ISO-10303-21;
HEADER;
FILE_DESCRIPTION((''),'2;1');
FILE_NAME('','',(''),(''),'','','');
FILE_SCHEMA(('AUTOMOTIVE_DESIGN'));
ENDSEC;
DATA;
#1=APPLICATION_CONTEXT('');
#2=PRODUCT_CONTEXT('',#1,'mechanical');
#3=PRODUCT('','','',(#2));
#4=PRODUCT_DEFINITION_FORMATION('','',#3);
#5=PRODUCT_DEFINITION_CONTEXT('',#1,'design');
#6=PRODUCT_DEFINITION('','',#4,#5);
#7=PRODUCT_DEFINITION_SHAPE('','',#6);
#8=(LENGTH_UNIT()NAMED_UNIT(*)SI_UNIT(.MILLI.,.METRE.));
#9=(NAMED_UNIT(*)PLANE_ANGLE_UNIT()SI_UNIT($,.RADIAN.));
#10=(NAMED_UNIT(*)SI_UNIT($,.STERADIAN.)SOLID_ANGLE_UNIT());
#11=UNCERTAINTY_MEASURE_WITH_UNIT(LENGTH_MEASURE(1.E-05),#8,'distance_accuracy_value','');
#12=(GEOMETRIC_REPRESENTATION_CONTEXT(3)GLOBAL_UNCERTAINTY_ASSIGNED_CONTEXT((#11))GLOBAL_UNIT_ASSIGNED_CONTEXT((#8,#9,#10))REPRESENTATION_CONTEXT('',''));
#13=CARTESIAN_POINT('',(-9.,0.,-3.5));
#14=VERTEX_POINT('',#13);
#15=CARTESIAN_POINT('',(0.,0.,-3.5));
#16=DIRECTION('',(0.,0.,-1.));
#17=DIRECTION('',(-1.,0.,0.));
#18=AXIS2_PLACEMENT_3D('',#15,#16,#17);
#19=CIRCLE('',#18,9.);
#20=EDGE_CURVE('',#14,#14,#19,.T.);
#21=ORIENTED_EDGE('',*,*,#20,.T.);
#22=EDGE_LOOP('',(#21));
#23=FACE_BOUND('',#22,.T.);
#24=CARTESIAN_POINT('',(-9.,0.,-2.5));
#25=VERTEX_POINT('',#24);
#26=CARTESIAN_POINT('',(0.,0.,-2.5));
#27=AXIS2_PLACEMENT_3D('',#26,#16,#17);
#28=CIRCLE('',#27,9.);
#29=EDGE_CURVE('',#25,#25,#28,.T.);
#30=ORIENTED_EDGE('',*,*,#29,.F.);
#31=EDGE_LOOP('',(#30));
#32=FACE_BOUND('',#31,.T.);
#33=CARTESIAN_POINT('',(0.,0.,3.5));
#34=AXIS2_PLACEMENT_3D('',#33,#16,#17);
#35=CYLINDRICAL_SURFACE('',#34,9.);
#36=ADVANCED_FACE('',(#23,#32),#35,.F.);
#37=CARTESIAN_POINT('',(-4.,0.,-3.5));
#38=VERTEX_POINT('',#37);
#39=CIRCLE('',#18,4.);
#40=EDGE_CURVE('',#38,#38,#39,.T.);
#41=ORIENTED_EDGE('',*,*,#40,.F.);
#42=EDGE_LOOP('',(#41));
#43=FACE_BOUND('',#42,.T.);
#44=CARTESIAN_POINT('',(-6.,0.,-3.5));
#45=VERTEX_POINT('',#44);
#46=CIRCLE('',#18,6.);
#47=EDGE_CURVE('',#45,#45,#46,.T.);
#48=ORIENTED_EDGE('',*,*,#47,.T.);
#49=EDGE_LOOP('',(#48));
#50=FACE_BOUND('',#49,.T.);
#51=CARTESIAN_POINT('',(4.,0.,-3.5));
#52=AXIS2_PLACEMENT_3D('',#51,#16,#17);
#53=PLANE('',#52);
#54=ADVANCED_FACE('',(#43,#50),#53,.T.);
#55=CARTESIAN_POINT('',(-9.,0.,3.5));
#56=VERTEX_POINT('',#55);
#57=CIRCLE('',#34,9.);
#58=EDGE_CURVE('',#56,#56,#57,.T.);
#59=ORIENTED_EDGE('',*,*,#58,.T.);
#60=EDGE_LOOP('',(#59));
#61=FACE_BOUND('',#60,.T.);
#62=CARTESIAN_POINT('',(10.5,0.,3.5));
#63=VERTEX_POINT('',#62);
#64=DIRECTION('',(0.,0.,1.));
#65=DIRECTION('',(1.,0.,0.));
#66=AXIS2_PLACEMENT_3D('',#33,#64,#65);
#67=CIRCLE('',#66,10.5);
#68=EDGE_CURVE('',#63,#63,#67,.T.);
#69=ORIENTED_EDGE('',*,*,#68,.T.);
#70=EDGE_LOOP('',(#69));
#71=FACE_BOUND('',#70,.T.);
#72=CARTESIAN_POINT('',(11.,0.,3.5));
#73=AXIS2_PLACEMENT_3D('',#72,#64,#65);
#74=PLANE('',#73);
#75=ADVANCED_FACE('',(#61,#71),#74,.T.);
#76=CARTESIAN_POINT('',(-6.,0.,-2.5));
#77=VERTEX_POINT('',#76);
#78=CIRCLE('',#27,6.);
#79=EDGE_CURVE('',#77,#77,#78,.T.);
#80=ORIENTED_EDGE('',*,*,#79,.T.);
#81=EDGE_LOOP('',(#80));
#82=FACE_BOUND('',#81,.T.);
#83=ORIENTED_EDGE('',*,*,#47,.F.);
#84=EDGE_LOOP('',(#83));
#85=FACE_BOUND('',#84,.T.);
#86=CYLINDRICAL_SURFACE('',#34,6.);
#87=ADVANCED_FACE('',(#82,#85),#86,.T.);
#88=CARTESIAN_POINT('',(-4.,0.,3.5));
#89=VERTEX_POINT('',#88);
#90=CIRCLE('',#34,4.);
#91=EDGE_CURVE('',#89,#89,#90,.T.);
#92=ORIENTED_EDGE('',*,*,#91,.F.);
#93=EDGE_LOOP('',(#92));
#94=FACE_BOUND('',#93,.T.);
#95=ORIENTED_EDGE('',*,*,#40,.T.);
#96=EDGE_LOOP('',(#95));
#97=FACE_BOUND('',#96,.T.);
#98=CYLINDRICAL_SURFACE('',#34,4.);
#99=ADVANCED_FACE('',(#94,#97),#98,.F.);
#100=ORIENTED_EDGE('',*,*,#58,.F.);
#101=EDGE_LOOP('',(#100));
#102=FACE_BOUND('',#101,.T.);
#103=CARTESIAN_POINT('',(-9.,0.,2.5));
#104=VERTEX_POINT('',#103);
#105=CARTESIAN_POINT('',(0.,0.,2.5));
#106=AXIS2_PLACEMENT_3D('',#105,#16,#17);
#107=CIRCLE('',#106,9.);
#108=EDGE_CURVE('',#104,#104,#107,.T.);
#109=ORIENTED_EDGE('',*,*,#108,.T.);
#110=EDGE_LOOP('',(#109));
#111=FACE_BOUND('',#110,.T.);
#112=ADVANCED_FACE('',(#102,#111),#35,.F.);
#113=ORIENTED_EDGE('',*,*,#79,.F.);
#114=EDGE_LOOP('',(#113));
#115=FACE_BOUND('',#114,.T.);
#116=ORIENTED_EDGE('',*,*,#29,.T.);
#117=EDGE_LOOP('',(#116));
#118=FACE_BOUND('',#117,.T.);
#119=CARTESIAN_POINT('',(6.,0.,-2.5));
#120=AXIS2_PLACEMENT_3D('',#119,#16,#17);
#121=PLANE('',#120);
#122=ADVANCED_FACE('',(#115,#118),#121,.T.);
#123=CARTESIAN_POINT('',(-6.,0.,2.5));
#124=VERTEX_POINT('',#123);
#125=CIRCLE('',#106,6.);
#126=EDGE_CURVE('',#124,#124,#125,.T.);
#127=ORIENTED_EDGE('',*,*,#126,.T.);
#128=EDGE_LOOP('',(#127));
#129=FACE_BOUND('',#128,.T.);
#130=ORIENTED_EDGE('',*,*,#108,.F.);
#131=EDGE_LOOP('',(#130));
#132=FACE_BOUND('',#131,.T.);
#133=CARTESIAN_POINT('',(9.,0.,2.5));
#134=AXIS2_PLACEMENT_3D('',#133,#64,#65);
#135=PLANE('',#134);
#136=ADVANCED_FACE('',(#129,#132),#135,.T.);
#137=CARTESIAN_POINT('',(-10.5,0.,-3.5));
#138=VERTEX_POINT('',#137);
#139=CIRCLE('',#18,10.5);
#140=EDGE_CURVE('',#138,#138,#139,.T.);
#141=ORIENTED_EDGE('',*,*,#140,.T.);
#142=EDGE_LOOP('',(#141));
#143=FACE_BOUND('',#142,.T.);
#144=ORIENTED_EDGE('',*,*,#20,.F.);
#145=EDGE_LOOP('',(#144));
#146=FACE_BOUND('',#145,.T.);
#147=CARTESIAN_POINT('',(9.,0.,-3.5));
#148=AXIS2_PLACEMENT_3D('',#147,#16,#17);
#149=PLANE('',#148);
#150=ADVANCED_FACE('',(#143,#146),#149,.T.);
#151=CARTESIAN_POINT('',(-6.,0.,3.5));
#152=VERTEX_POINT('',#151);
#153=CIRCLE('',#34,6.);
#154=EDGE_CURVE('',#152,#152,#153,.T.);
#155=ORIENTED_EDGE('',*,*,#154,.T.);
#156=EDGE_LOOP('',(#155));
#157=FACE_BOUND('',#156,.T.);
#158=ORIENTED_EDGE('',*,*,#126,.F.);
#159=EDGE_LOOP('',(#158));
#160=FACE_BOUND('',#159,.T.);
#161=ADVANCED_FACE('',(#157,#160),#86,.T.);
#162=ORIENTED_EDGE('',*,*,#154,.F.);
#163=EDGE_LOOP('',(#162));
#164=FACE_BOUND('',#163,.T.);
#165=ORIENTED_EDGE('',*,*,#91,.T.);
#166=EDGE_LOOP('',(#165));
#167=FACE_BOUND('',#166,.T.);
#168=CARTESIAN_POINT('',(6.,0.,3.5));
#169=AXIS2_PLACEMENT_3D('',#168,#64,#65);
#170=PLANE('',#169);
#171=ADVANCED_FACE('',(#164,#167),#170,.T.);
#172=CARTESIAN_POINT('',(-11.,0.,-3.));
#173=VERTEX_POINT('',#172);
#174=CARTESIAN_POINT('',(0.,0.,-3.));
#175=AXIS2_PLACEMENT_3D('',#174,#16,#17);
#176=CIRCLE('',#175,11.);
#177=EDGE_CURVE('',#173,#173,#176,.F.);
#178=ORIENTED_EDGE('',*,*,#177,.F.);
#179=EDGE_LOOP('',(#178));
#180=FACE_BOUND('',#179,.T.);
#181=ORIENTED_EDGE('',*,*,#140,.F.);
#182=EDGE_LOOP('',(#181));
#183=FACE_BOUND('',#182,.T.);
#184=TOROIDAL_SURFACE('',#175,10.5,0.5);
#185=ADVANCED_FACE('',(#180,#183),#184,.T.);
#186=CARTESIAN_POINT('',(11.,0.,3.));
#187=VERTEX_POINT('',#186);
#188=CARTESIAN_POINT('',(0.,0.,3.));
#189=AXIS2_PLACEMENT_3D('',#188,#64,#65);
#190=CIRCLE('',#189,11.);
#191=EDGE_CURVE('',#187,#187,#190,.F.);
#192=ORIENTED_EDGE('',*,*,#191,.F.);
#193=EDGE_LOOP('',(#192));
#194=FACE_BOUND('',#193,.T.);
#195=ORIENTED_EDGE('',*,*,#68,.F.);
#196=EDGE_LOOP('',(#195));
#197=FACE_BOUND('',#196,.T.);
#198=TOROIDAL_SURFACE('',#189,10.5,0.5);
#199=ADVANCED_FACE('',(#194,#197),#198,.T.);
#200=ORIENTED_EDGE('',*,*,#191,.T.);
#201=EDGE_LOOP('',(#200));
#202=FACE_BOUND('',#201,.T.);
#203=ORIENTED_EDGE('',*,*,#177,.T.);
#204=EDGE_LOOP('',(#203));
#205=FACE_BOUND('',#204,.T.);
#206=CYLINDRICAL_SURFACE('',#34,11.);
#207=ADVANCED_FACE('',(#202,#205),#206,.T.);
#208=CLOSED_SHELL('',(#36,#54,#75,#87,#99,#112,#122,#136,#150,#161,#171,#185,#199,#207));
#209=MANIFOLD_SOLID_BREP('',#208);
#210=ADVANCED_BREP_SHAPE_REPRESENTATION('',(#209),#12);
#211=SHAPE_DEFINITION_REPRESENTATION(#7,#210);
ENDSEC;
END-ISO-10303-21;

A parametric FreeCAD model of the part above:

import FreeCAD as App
import Part
import Sketcher

V = App.Vector


def edges_at(feature, points):
    """Names of the edges that pass closest to the given points."""
    edges = feature.Shape.Edges
    near = lambda p: min(range(len(edges)), key=lambda i: edges[i].distToShape(Part.Vertex(*p))[0])
    return sorted({f"Edge{near(p) + 1}" for p in points})


def add_polygon(sketch, points):
    """Adds a closed chain of lines whose ends are joined by coincident constraints."""
    first, n = sketch.GeometryCount, len(points)
    for a, b in zip(points, points[1:] + points[:1]):
        sketch.addGeometry(Part.LineSegment(App.Vector(*a, 0), App.Vector(*b, 0)), False)
    for i in range(n):
        sketch.addConstraint(Sketcher.Constraint("Coincident", first + i, 2, first + (i + 1) % n, 1))

doc = App.newDocument("Part")
params = doc.addObject("Spreadsheet::Sheet", "Params")
for row, (alias, value) in enumerate([
    ("sketch1_width", "3 mm"),
    ("sketch1_width2", "2 mm"),
    ("sketch1_height", "1 mm"),
    ("sketch1_height2", "7 mm"),
    ("revolution_angle", "360 deg"),
    ("fillet_radius", "0.5 mm"),
], start=1):
    params.set(f"A{row}", alias)
    params.set(f"B{row}", "=" + value)
    params.setAlias(f"B{row}", alias)

body = doc.addObject("PartDesign::Body", "Body")

# Sketch on XZ plane
sketch1 = body.newObject("Sketcher::SketchObject", "Sketch")
sketch1.AttachmentSupport = (doc.getObject("XZ_Plane"), [""])
sketch1.MapMode = "FlatFace"
add_polygon(sketch1, [(6, -3.5), (6, -2.5), (9, -2.5), (9, -3.5), (11, -3.5), (11, 3.5), (9, 3.5), (9, 2.5), (6, 2.5), (6, 3.5), (4, 3.5), (4, -3.5)])  # lines 0-11
sketch1.addConstraint([
    Sketcher.Constraint("Vertical", 0),
    Sketcher.Constraint("Horizontal", 1),
    Sketcher.Constraint("Vertical", 2),
    Sketcher.Constraint("Horizontal", 3),
    Sketcher.Constraint("Vertical", 4),
    Sketcher.Constraint("Horizontal", 5),
    Sketcher.Constraint("Vertical", 6),
    Sketcher.Constraint("Horizontal", 7),
    Sketcher.Constraint("Vertical", 8),
    Sketcher.Constraint("Horizontal", 9),
    Sketcher.Constraint("Vertical", 10),
    Sketcher.Constraint("Horizontal", 11),
    Sketcher.Constraint("Symmetric", 2, 2, 5, 2, -1),
    Sketcher.Constraint("Symmetric", 0, 2, 7, 2, -1),
    Sketcher.Constraint("Horizontal", 5, 2, 8, 2),
    Sketcher.Constraint("Horizontal", 3, 2, 10, 2),
    Sketcher.Constraint("Equal", 5, 9),
    Sketcher.Constraint("DistanceX", 1, 1, 1, 2, 3.0),
    Sketcher.Constraint("DistanceX", 3, 1, 3, 2, 2.0),
    Sketcher.Constraint("DistanceY", 0, 1, 0, 2, 1.0),
    Sketcher.Constraint("DistanceY", 4, 1, 4, 2, 7.0),
    Sketcher.Constraint("DistanceX", -1, 1, 0, 2, 6.0),
])
sketch1.setExpression("Constraints[29]", "Params.sketch1_width")
sketch1.setExpression("Constraints[30]", "Params.sketch1_width2")
sketch1.setExpression("Constraints[31]", "Params.sketch1_height")
sketch1.setExpression("Constraints[32]", "Params.sketch1_height2")
revolution = body.newObject("PartDesign::Revolution", "Revolution")
revolution.Profile = sketch1
revolution.ReferenceAxis = (sketch1, ["V_Axis"])
revolution.setExpression("Angle", "Params.revolution_angle")
doc.recompute()

fillet = body.newObject("PartDesign::Fillet", "Fillet")
fillet.Base = (revolution, edges_at(revolution, [(-11, 0, 3.5), (-11, 0, -3.5)]))
fillet.setExpression("Radius", "Params.fillet_radius")

doc.recompute()
